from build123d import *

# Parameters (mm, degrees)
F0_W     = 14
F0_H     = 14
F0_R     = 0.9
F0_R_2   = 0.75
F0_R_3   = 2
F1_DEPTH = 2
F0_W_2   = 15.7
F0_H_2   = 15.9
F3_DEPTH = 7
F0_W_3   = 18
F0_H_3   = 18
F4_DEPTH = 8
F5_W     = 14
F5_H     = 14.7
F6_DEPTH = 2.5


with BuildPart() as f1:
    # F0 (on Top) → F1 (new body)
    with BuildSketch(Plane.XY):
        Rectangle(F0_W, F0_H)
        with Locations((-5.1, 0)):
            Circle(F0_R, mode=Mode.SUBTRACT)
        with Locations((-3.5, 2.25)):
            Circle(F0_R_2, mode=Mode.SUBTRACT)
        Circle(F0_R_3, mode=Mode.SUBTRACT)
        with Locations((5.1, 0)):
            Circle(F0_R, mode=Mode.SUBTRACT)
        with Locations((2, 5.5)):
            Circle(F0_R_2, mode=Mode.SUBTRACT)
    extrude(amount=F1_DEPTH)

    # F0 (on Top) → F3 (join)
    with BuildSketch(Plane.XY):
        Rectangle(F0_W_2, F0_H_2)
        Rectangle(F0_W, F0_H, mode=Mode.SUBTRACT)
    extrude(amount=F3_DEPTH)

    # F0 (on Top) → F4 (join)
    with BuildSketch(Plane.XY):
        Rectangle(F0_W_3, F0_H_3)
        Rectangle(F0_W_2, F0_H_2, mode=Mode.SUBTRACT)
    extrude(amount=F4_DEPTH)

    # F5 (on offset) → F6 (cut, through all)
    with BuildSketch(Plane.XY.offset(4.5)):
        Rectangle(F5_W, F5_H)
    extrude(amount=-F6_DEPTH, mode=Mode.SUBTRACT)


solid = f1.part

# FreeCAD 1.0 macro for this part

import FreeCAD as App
import Part
import Sketcher

V = App.Vector
Q = App.Units.Quantity


def add_polygon(sketch, points):
    """Adds a closed chain of lines whose ends are joined by coincident constraints."""
    first, n = sketch.GeometryCount, len(points)
    for a, b in zip(points, points[1:] + points[:1]):
        sketch.addGeometry(Part.LineSegment(App.Vector(*a, 0), App.Vector(*b, 0)), False)
    for i in range(n):
        sketch.addConstraint(Sketcher.Constraint("Coincident", first + i, 2, first + (i + 1) % n, 1))

doc = App.newDocument("Part")
body = doc.addObject("PartDesign::Body", "Body")

# Sketch on XY plane
sketch1 = body.newObject("Sketcher::SketchObject", "Sketch")
sketch1.AttachmentSupport = (doc.getObject("XY_Plane"), [""])
sketch1.MapMode = "FlatFace"
add_polygon(sketch1, [(-7, 7), (-7, -7), (7, -7), (7, 7)])  # lines 0-3
sketch1.addGeometry(Part.Circle(V(-5.1, 0, 0), V(0, 0, 1), 0.9), False)  # 4
sketch1.addGeometry(Part.Circle(V(0, 0, 0), V(0, 0, 1), 2), False)  # 5
sketch1.addGeometry(Part.Circle(V(5.1, 0, 0), V(0, 0, 1), 0.9), False)  # 6
sketch1.addGeometry(Part.Circle(V(-3.5, 2.25, 0), V(0, 0, 1), 0.75), False)  # 7
sketch1.addGeometry(Part.Circle(V(2, 5.5, 0), V(0, 0, 1), 0.75), False)  # 8
sketch1.addConstraint([
    Sketcher.Constraint("Vertical", 0),
    Sketcher.Constraint("Horizontal", 1),
    Sketcher.Constraint("Vertical", 2),
    Sketcher.Constraint("Horizontal", 3),
    Sketcher.Constraint("Coincident", 5, 3, -1, 1),
    Sketcher.Constraint("Equal", 4, 6),
    Sketcher.Constraint("Equal", 7, 8),
    Sketcher.Constraint("Symmetric", 4, 3, 6, 3, -1, 1),
    Sketcher.Constraint("Symmetric", 0, 2, 2, 2, -1, 1),
    Sketcher.Constraint("PointOnObject", 4, 3, -1),
    Sketcher.Constraint("Equal", 3, 0),
    Sketcher.Constraint("Diameter", 5, Q("4 mm")),
    Sketcher.Constraint("Diameter", 4, Q("1.8 mm")),
    Sketcher.Constraint("Diameter", 7, Q("1.5 mm")),
    Sketcher.Constraint("DistanceX", 1, 1, 1, 2, Q("14 mm")),
    Sketcher.Constraint("DistanceX", -1, 1, 8, 3, Q("2 mm")),
    Sketcher.Constraint("DistanceX", 4, 3, -1, 1, Q("5.1 mm")),
    Sketcher.Constraint("DistanceX", 7, 3, -1, 1, Q("3.5 mm")),
    Sketcher.Constraint("DistanceY", -1, 1, 8, 3, Q("5.5 mm")),
    Sketcher.Constraint("DistanceY", -1, 1, 7, 3, Q("2.25 mm")),
])
pad1 = body.newObject("PartDesign::Pad", "Pad")
pad1.Profile = sketch1
pad1.Length = 2

# Sketch on XY plane
sketch2 = body.newObject("Sketcher::SketchObject", "Sketch001")
sketch2.AttachmentSupport = (doc.getObject("XY_Plane"), [""])
sketch2.MapMode = "FlatFace"
add_polygon(sketch2, [(-7.85, 7.95), (-7.85, -7.95), (7.85, -7.95), (7.85, 7.95)])  # lines 0-3
add_polygon(sketch2, [(7, -7), (-7, -7), (-7, 7), (7, 7)])  # lines 4-7
sketch2.addConstraint([
    Sketcher.Constraint("Vertical", 0),
    Sketcher.Constraint("Horizontal", 1),
    Sketcher.Constraint("Vertical", 2),
    Sketcher.Constraint("Horizontal", 3),
    Sketcher.Constraint("Horizontal", 4),
    Sketcher.Constraint("Vertical", 5),
    Sketcher.Constraint("Horizontal", 6),
    Sketcher.Constraint("Vertical", 7),
    Sketcher.Constraint("Symmetric", 0, 2, 2, 2, -1, 1),
    Sketcher.Constraint("Symmetric", 4, 2, 6, 2, -1, 1),
    Sketcher.Constraint("Equal", 6, 5),
    Sketcher.Constraint("DistanceX", 4, 2, 4, 1, Q("14 mm")),
    Sketcher.Constraint("DistanceX", 1, 1, 1, 2, Q("15.7 mm")),
    Sketcher.Constraint("DistanceY", 0, 2, 0, 1, Q("15.9 mm")),
])
pad2 = body.newObject("PartDesign::Pad", "Pad001")
pad2.Profile = sketch2
pad2.Length = 7

# Sketch on XY plane
sketch3 = body.newObject("Sketcher::SketchObject", "Sketch002")
sketch3.AttachmentSupport = (doc.getObject("XY_Plane"), [""])
sketch3.MapMode = "FlatFace"
add_polygon(sketch3, [(-9, 9), (-9, -9), (9, -9), (9, 9)])  # lines 0-3
add_polygon(sketch3, [(7.85, -7.95), (-7.85, -7.95), (-7.85, 7.95), (7.85, 7.95)])  # lines 4-7
sketch3.addConstraint([
    Sketcher.Constraint("Vertical", 0),
    Sketcher.Constraint("Horizontal", 1),
    Sketcher.Constraint("Vertical", 2),
    Sketcher.Constraint("Horizontal", 3),
    Sketcher.Constraint("Horizontal", 4),
    Sketcher.Constraint("Vertical", 5),
    Sketcher.Constraint("Horizontal", 6),
    Sketcher.Constraint("Vertical", 7),
    Sketcher.Constraint("Symmetric", 0, 2, 2, 2, -1, 1),
    Sketcher.Constraint("Symmetric", 4, 2, 6, 2, -1, 1),
    Sketcher.Constraint("Equal", 3, 0),
    Sketcher.Constraint("DistanceX", 1, 1, 1, 2, Q("18 mm")),
    Sketcher.Constraint("DistanceX", 4, 2, 4, 1, Q("15.7 mm")),
    Sketcher.Constraint("DistanceY", 5, 1, 5, 2, Q("15.9 mm")),
])
pad3 = body.newObject("PartDesign::Pad", "Pad002")
pad3.Profile = sketch3
pad3.Length = 8

# Sketch on XY plane
sketch4 = body.newObject("Sketcher::SketchObject", "Sketch003")
sketch4.AttachmentSupport = (doc.getObject("XY_Plane"), [""])
sketch4.MapMode = "FlatFace"
sketch4.AttachmentOffset = App.Placement(V(0, 0, 4.5), App.Rotation())
add_polygon(sketch4, [(-7, 7.35), (-7, -7.35), (7, -7.35), (7, 7.35)])  # lines 0-3
sketch4.addConstraint([
    Sketcher.Constraint("Vertical", 0),
    Sketcher.Constraint("Horizontal", 1),
    Sketcher.Constraint("Vertical", 2),
    Sketcher.Constraint("Horizontal", 3),
    Sketcher.Constraint("Symmetric", 0, 2, 2, 2, -1, 1),
    Sketcher.Constraint("DistanceX", 1, 1, 1, 2, Q("14 mm")),
    Sketcher.Constraint("DistanceY", 0, 2, 0, 1, Q("14.7 mm")),
])
pocket1 = body.newObject("PartDesign::Pocket", "Pocket")
pocket1.Profile = sketch4
pocket1.Length = 2.5

doc.recompute()
